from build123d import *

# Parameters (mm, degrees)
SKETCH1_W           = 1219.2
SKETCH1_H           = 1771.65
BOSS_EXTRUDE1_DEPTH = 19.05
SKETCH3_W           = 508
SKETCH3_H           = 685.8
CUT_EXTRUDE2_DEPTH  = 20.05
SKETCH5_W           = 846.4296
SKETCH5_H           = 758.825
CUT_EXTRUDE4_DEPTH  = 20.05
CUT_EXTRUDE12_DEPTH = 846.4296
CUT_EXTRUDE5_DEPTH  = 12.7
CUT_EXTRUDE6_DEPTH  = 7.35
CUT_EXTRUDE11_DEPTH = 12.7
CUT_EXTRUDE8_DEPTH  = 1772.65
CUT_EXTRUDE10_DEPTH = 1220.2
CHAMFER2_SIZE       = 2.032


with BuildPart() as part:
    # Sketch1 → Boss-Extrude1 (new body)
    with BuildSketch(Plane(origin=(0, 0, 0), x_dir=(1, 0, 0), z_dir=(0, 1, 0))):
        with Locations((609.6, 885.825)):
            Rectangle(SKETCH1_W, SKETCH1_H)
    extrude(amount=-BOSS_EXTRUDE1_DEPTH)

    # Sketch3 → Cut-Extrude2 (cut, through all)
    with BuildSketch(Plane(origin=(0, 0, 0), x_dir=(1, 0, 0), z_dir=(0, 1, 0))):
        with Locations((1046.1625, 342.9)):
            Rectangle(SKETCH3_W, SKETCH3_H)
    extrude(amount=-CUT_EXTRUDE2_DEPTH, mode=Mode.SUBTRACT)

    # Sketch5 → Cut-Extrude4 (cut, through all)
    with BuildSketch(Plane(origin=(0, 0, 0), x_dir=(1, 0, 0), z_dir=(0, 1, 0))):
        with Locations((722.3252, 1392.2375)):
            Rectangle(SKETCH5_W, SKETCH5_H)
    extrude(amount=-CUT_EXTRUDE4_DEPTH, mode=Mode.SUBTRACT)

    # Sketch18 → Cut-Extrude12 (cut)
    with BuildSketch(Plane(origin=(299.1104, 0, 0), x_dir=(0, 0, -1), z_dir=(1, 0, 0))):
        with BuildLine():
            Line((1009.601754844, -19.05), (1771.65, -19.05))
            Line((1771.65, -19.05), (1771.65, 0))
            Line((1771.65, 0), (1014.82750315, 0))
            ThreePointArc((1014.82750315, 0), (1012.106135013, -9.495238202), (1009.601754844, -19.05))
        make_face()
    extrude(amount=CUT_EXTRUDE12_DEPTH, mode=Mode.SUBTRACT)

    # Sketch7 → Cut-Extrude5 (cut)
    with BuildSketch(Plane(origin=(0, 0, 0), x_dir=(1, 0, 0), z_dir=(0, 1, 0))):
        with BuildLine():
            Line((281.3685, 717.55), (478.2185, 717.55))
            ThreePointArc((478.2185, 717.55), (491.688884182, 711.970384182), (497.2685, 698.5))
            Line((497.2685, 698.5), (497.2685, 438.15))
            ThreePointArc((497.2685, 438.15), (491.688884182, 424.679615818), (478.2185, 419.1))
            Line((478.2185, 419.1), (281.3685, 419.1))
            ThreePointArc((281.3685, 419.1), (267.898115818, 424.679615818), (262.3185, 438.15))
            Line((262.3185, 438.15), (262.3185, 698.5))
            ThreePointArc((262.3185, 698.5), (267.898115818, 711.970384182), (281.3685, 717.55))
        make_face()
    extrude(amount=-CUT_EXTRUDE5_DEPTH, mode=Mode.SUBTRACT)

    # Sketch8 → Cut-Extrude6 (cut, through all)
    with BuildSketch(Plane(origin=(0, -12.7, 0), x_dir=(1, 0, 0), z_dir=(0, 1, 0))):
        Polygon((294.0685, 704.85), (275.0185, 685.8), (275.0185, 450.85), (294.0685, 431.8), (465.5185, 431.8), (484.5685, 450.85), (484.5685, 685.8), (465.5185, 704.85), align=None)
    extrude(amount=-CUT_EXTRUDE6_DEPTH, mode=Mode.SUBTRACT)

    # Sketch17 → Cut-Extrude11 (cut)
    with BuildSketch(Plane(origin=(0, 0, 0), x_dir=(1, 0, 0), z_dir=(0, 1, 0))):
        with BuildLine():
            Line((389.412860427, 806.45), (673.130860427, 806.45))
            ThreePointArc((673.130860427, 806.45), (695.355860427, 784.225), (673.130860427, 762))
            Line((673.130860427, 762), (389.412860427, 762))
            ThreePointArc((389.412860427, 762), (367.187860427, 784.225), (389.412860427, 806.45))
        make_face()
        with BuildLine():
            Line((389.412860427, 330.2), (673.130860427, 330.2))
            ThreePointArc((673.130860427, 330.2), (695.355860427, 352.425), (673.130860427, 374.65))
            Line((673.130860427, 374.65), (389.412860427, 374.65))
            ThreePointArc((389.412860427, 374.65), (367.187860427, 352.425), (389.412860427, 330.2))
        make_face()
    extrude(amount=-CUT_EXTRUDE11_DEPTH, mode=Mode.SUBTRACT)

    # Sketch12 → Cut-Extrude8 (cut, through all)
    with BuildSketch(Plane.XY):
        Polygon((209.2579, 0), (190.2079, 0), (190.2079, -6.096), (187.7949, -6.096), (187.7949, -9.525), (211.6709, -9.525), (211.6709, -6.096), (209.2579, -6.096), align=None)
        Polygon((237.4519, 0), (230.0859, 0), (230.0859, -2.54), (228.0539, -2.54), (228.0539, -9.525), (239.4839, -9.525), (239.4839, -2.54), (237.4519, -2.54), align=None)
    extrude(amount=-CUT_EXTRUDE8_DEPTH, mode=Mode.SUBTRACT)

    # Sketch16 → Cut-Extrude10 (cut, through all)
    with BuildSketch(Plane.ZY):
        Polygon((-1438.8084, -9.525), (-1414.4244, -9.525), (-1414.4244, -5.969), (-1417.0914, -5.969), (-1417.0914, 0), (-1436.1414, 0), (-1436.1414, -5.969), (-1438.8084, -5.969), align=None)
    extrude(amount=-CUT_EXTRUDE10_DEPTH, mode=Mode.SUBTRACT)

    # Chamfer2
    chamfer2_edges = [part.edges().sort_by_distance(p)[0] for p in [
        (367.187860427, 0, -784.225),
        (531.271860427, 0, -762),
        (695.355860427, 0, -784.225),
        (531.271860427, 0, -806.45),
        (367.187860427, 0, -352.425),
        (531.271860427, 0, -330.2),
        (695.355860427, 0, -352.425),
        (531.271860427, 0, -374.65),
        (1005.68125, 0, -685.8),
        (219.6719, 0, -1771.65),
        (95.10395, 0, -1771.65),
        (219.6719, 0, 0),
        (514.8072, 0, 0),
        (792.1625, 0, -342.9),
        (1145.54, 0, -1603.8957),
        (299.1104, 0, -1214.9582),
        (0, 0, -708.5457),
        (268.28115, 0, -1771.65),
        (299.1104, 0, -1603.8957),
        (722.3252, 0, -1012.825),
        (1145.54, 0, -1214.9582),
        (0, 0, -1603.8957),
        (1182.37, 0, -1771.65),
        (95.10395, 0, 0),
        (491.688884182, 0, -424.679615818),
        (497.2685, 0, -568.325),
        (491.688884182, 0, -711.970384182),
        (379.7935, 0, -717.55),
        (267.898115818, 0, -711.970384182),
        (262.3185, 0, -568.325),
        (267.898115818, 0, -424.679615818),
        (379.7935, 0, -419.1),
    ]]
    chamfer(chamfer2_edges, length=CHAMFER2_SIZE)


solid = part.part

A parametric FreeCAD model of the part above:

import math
import FreeCAD as App
import Part
import Sketcher
from FreeCAD import Vector
Q = App.Units.Quantity


def edges_at(feature, points):
    """Names of the edges that pass closest to the given points."""
    edges = feature.Shape.Edges
    near = lambda p: min(range(len(edges)), key=lambda i: edges[i].distToShape(Part.Vertex(*p))[0])
    return sorted({f"Edge{near(p) + 1}" for p in points})

doc = App.newDocument("Part")
params = doc.addObject("Spreadsheet::Sheet", "Params")
for row, (alias, value) in enumerate([
    ("sketch1_width", "48 in"),
    ("sketch1_height", "69.75 in"),
    ("pad1_length", "0.75 in"),
    ("sketch2_width", "20 in"),
    ("sketch2_height", "27 in"),
    ("sketch3_width", "33.324 in"),
    ("sketch3_height", "29.875 in"),
    ("sketch4_width", "0.75 in"),
    ("pocket3_length", "33.324 in"),
    ("sketch5_radius", "0.75 in"),
    ("sketch5_width", "7.75 in"),
    ("pocket4_length", "0.5 in"),
    ("sketch6_width", "6.75 in"),
    ("sketch6_height", "9.25 in"),
    ("sketch7_radius", "0.875 in"),
    ("sketch7_width", "11.17 in"),
    ("pocket6_length", "0.5 in"),
    ("sketch8_height", "0.1 in"),
    ("sketch8_width", "0.75 in"),
    ("sketch8_width2", "0.94 in"),
    ("sketch8_width3", "0.29 in"),
    ("sketch8_width4", "0.08 in"),
    ("sketch9_width", "0.14 in"),
    ("sketch9_height", "0.96 in"),
    ("sketch9_height2", "0.75 in"),
    ("sketch9_width2", "0.235 in"),
    ("chamfer_size", "0.08 in"),
], start=1):
    params.set(f"A{row}", alias)
    params.set(f"B{row}", "=" + value)
    params.setAlias(f"B{row}", alias)

body = doc.addObject("PartDesign::Body", "Body")

sketch1 = body.newObject("Sketcher::SketchObject", "Sketch")
sketch1.AttachmentSupport = (doc.getObject("XZ_Plane"), [""])
sketch1.MapMode = "FlatFace"
sketch1.addGeometry(Part.LineSegment(Vector(0, -1772, 0), Vector(0, 0, 0)), False)
sketch1.addGeometry(Part.LineSegment(Vector(0, 0, 0), Vector(1219, 0, 0)), False)
sketch1.addGeometry(Part.LineSegment(Vector(1219, 0, 0), Vector(1219, -1772, 0)), False)
sketch1.addGeometry(Part.LineSegment(Vector(1219, -1772, 0), Vector(0, -1772, 0)), False)
sketch1.addConstraint(Sketcher.Constraint("Coincident", 0, 2, 1, 1))
sketch1.addConstraint(Sketcher.Constraint("Coincident", 1, 2, 2, 1))
sketch1.addConstraint(Sketcher.Constraint("Coincident", 2, 2, 3, 1))
sketch1.addConstraint(Sketcher.Constraint("Coincident", 3, 2, 0, 1))
sketch1.addConstraint(Sketcher.Constraint("Vertical", 0))
sketch1.addConstraint(Sketcher.Constraint("Horizontal", 1))
sketch1.addConstraint(Sketcher.Constraint("Vertical", 2))
sketch1.addConstraint(Sketcher.Constraint("Horizontal", 3))
sketch1.addConstraint(Sketcher.Constraint("Coincident", 0, 2, -1, 1))
sketch1.addConstraint(Sketcher.Constraint("DistanceX", 1, 1, 1, 2, Q("48 in")))
sketch1.addConstraint(Sketcher.Constraint("DistanceY", 0, 1, 0, 2, Q("69.75 in")))
sketch1.setExpression("Constraints[9]", "Params.sketch1_width")
sketch1.setExpression("Constraints[10]", "Params.sketch1_height")
pad1 = body.newObject("PartDesign::Pad", "Pad")
pad1.Profile = sketch1
pad1.setExpression("Length", "Params.pad1_length")

sketch2 = body.newObject("Sketcher::SketchObject", "Sketch001")
sketch2.AttachmentSupport = (doc.getObject("XZ_Plane"), [""])
sketch2.MapMode = "FlatFace"
sketch2.addGeometry(Part.LineSegment(Vector(792, -686, 0), Vector(792, 0, 0)), False)
sketch2.addGeometry(Part.LineSegment(Vector(792, 0, 0), Vector(1300, 0, 0)), False)
sketch2.addGeometry(Part.LineSegment(Vector(1300, 0, 0), Vector(1300, -686, 0)), False)
sketch2.addGeometry(Part.LineSegment(Vector(1300, -686, 0), Vector(792, -686, 0)), False)
sketch2.addConstraint(Sketcher.Constraint("Coincident", 0, 2, 1, 1))
sketch2.addConstraint(Sketcher.Constraint("Coincident", 1, 2, 2, 1))
sketch2.addConstraint(Sketcher.Constraint("Coincident", 2, 2, 3, 1))
sketch2.addConstraint(Sketcher.Constraint("Coincident", 3, 2, 0, 1))
sketch2.addConstraint(Sketcher.Constraint("Vertical", 0))
sketch2.addConstraint(Sketcher.Constraint("Horizontal", 1))
sketch2.addConstraint(Sketcher.Constraint("Vertical", 2))
sketch2.addConstraint(Sketcher.Constraint("Horizontal", 3))
sketch2.addConstraint(Sketcher.Constraint("PointOnObject", 0, 2, -1))
sketch2.addConstraint(Sketcher.Constraint("DistanceX", 1, 1, 1, 2, Q("20 in")))
sketch2.addConstraint(Sketcher.Constraint("DistanceY", 0, 1, 0, 2, Q("27 in")))
sketch2.addConstraint(Sketcher.Constraint("DistanceX", -1, 1, 0, 2, Q("31.1875 in")))
sketch2.setExpression("Constraints[9]", "Params.sketch2_width")
sketch2.setExpression("Constraints[10]", "Params.sketch2_height")
pocket1 = body.newObject("PartDesign::Pocket", "Pocket")
pocket1.Profile = sketch2
pocket1.Type = "ThroughAll"
pocket1.Reversed = True

sketch3 = body.newObject("Sketcher::SketchObject", "Sketch002")
sketch3.AttachmentSupport = (doc.getObject("XZ_Plane"), [""])
sketch3.MapMode = "FlatFace"
sketch3.addGeometry(Part.LineSegment(Vector(299, -1772, 0), Vector(299, -1013, 0)), False)
sketch3.addGeometry(Part.LineSegment(Vector(299, -1013, 0), Vector(1146, -1013, 0)), False)
sketch3.addGeometry(Part.LineSegment(Vector(1146, -1013, 0), Vector(1146, -1772, 0)), False)
sketch3.addGeometry(Part.LineSegment(Vector(1146, -1772, 0), Vector(299, -1772, 0)), False)
sketch3.addConstraint(Sketcher.Constraint("Coincident", 0, 2, 1, 1))
sketch3.addConstraint(Sketcher.Constraint("Coincident", 1, 2, 2, 1))
sketch3.addConstraint(Sketcher.Constraint("Coincident", 2, 2, 3, 1))
sketch3.addConstraint(Sketcher.Constraint("Coincident", 3, 2, 0, 1))
sketch3.addConstraint(Sketcher.Constraint("Vertical", 0))
sketch3.addConstraint(Sketcher.Constraint("Horizontal", 1))
sketch3.addConstraint(Sketcher.Constraint("Vertical", 2))
sketch3.addConstraint(Sketcher.Constraint("Horizontal", 3))
sketch3.addConstraint(Sketcher.Constraint("DistanceX", -1, 1, 1, 2, Q("45.1 in")))
sketch3.addConstraint(Sketcher.Constraint("DistanceX", 1, 1, 1, 2, Q("33.324 in")))
sketch3.addConstraint(Sketcher.Constraint("DistanceY", 0, 1, 0, 2, Q("29.875 in")))
sketch3.addConstraint(Sketcher.Constraint("DistanceY", 2, 2, -1, 1, Q("69.75 in")))
sketch3.setExpression("Constraints[9]", "Params.sketch3_width")
sketch3.setExpression("Constraints[10]", "Params.sketch3_height")
pocket2 = body.newObject("PartDesign::Pocket", "Pocket001")
pocket2.Profile = sketch3
pocket2.Type = "ThroughAll"
pocket2.Reversed = True

sketch4 = body.newObject("Sketcher::SketchObject", "Sketch003")
sketch4.AttachmentSupport = (doc.getObject("YZ_Plane"), [""])
sketch4.MapMode = "FlatFace"
sketch4.AttachmentOffset = App.Placement(Vector(0, 0, 11.776 * 25.4), App.Rotation())
sketch4.addGeometry(Part.LineSegment(Vector(-19, -1010, 0), Vector(-19, -1772, 0)), False)
sketch4.addGeometry(Part.LineSegment(Vector(-19, -1772, 0), Vector(0, -1772, 0)), False)
sketch4.addGeometry(Part.LineSegment(Vector(0, -1772, 0), Vector(0, -1015, 0)), False)
sketch4.addGeometry(Part.ArcOfCircle(Part.Circle(Vector(-124, -1430, 0), Vector(0, 0, 1), 434), math.radians(73.35), math.radians(75.97)), False)
sketch4.addConstraint(Sketcher.Constraint("Coincident", 0, 2, 1, 1))
sketch4.addConstraint(Sketcher.Constraint("Coincident", 1, 2, 2, 1))
sketch4.addConstraint(Sketcher.Constraint("Coincident", 2, 2, 3, 1))
sketch4.addConstraint(Sketcher.Constraint("Coincident", 3, 2, 0, 1))
sketch4.addConstraint(Sketcher.Constraint("Vertical", 0))
sketch4.addConstraint(Sketcher.Constraint("Horizontal", 1))
sketch4.addConstraint(Sketcher.Constraint("Vertical", 2))
sketch4.addConstraint(Sketcher.Constraint("PointOnObject", 1, 2, -2))
sketch4.addConstraint(Sketcher.Constraint("DistanceX", 1, 1, 1, 2, Q("0.75 in")))
sketch4.addConstraint(Sketcher.Constraint("Radius", 3, Q("17.0715001 in")))
sketch4.addConstraint(Sketcher.Constraint("DistanceX", 3, 3, -1, 1, Q("4.89 in")))
sketch4.addConstraint(Sketcher.Constraint("DistanceY", 3, 3, -1, 1, Q("56.3100001 in")))
sketch4.addConstraint(Sketcher.Constraint("DistanceY", 0, 2, -1, 1, Q("69.75 in")))
sketch4.setExpression("Constraints[8]", "Params.sketch4_width")
pocket3 = body.newObject("PartDesign::Pocket", "Pocket002")
pocket3.Profile = sketch4
pocket3.setExpression("Length", "Params.pocket3_length")
pocket3.Reversed = True

sketch5 = body.newObject("Sketcher::SketchObject", "Sketch004")
sketch5.AttachmentSupport = (doc.getObject("XZ_Plane"), [""])
sketch5.MapMode = "FlatFace"
sketch5.addGeometry(Part.LineSegment(Vector(478, -718, 0), Vector(281, -718, 0)), False)
sketch5.addGeometry(Part.ArcOfCircle(Part.Circle(Vector(281, -699, 0), Vector(0, 0, 1), 19), math.radians(180), math.radians(270)), False)
sketch5.addGeometry(Part.LineSegment(Vector(262, -698, 0), Vector(262, -438, 0)), False)
sketch5.addGeometry(Part.ArcOfCircle(Part.Circle(Vector(281, -438, 0), Vector(0, 0, 1), 19), math.radians(90), math.radians(180)), False)
sketch5.addGeometry(Part.LineSegment(Vector(281, -419, 0), Vector(478, -419, 0)), False)
sketch5.addGeometry(Part.ArcOfCircle(Part.Circle(Vector(478, -438, 0), Vector(0, 0, 1), 19), math.radians(0), math.radians(90)), False)
sketch5.addGeometry(Part.LineSegment(Vector(497, -438, 0), Vector(497, -698, 0)), False)
sketch5.addGeometry(Part.ArcOfCircle(Part.Circle(Vector(478, -699, 0), Vector(0, 0, 1), 19), math.radians(-90), math.radians(0)), False)
sketch5.addConstraint(Sketcher.Constraint("Tangent", 0, 2, 1, 2))
sketch5.addConstraint(Sketcher.Constraint("Tangent", 1, 1, 2, 1))
sketch5.addConstraint(Sketcher.Constraint("Tangent", 2, 2, 3, 2))
sketch5.addConstraint(Sketcher.Constraint("Tangent", 3, 1, 4, 1))
sketch5.addConstraint(Sketcher.Constraint("Tangent", 4, 2, 5, 2))
sketch5.addConstraint(Sketcher.Constraint("Tangent", 5, 1, 6, 1))
sketch5.addConstraint(Sketcher.Constraint("Tangent", 6, 2, 7, 2))
sketch5.addConstraint(Sketcher.Constraint("Tangent", 7, 1, 0, 1))
sketch5.addConstraint(Sketcher.Constraint("Horizontal", 0))
sketch5.addConstraint(Sketcher.Constraint("Vertical", 2))
sketch5.addConstraint(Sketcher.Constraint("Horizontal", 4))
sketch5.addConstraint(Sketcher.Constraint("Vertical", 6))
sketch5.addConstraint(Sketcher.Constraint("Equal", 1, 3))
sketch5.addConstraint(Sketcher.Constraint("Equal", 3, 5))
sketch5.addConstraint(Sketcher.Constraint("Equal", 5, 7))
sketch5.addConstraint(Sketcher.Constraint("Radius", 1, Q("0.75 in")))
sketch5.addConstraint(Sketcher.Constraint("DistanceY", 0, 2, 3, 3, Q("11 in")))
sketch5.addConstraint(Sketcher.Constraint("DistanceX", 0, 2, 0, 1, Q("7.75 in")))
sketch5.addConstraint(Sketcher.Constraint("DistanceY", 1, 3, -1, 1, Q("27.5 in")))
sketch5.addConstraint(Sketcher.Constraint("DistanceX", -1, 1, 1, 3, Q("11.0775 in")))
sketch5.setExpression("Constraints[15]", "Params.sketch5_radius")
sketch5.setExpression("Constraints[17]", "Params.sketch5_width")
pocket4 = body.newObject("PartDesign::Pocket", "Pocket003")
pocket4.Profile = sketch5
pocket4.setExpression("Length", "Params.pocket4_length")
pocket4.Reversed = True

sketch6 = body.newObject("Sketcher::SketchObject", "Sketch005")
sketch6.AttachmentSupport = (doc.getObject("XZ_Plane"), [""])
sketch6.MapMode = "FlatFace"
sketch6.AttachmentOffset = App.Placement(Vector(0, 0, 0.5 * 25.4), App.Rotation())
sketch6.addGeometry(Part.LineSegment(Vector(294, -705, 0), Vector(275, -686, 0)), False)
sketch6.addGeometry(Part.LineSegment(Vector(275, -686, 0), Vector(275, -451, 0)), False)
sketch6.addGeometry(Part.LineSegment(Vector(275, -451, 0), Vector(294, -432, 0)), False)
sketch6.addGeometry(Part.LineSegment(Vector(294, -432, 0), Vector(466, -432, 0)), False)
sketch6.addGeometry(Part.LineSegment(Vector(466, -432, 0), Vector(485, -451, 0)), False)
sketch6.addGeometry(Part.LineSegment(Vector(485, -451, 0), Vector(485, -686, 0)), False)
sketch6.addGeometry(Part.LineSegment(Vector(485, -686, 0), Vector(466, -705, 0)), False)
sketch6.addGeometry(Part.LineSegment(Vector(466, -705, 0), Vector(294, -705, 0)), False)
sketch6.addConstraint(Sketcher.Constraint("Coincident", 0, 2, 1, 1))
sketch6.addConstraint(Sketcher.Constraint("Coincident", 1, 2, 2, 1))
sketch6.addConstraint(Sketcher.Constraint("Coincident", 2, 2, 3, 1))
sketch6.addConstraint(Sketcher.Constraint("Coincident", 3, 2, 4, 1))
sketch6.addConstraint(Sketcher.Constraint("Coincident", 4, 2, 5, 1))
sketch6.addConstraint(Sketcher.Constraint("Coincident", 5, 2, 6, 1))
sketch6.addConstraint(Sketcher.Constraint("Coincident", 6, 2, 7, 1))
sketch6.addConstraint(Sketcher.Constraint("Coincident", 7, 2, 0, 1))
sketch6.addConstraint(Sketcher.Constraint("Vertical", 1))
sketch6.addConstraint(Sketcher.Constraint("Horizontal", 3))
sketch6.addConstraint(Sketcher.Constraint("Vertical", 5))
sketch6.addConstraint(Sketcher.Constraint("Horizontal", 7))
sketch6.addConstraint(Sketcher.Constraint("Perpendicular", 0, 2))
sketch6.addConstraint(Sketcher.Constraint("Perpendicular", 2, 4))
sketch6.addConstraint(Sketcher.Constraint("Perpendicular", 4, 6))
sketch6.addConstraint(Sketcher.Constraint("Horizontal", 1, 2, 4, 2))
sketch6.addConstraint(Sketcher.Constraint("Horizontal", 0, 2, 5, 2))
sketch6.addConstraint(Sketcher.Constraint("Vertical", 3, 2, 6, 2))
sketch6.addConstraint(Sketcher.Constraint("Vertical", 2, 2, 7, 2))
sketch6.addConstraint(Sketcher.Constraint("DistanceY", 0, 2, -1, 1, Q("27 in")))
sketch6.addConstraint(Sketcher.Constraint("DistanceY", 2, 2, -1, 1, Q("17 in")))
sketch6.addConstraint(Sketcher.Constraint("DistanceX", 3, 1, 3, 2, Q("6.75 in")))
sketch6.addConstraint(Sketcher.Constraint("DistanceY", 1, 1, 1, 2, Q("9.25 in")))
sketch6.addConstraint(Sketcher.Constraint("DistanceX", -1, 1, 0, 2, Q("10.8275 in")))
sketch6.setExpression("Constraints[21]", "Params.sketch6_width")
sketch6.setExpression("Constraints[22]", "Params.sketch6_height")
pocket5 = body.newObject("PartDesign::Pocket", "Pocket004")
pocket5.Profile = sketch6
pocket5.Type = "ThroughAll"
pocket5.Reversed = True

sketch7 = body.newObject("Sketcher::SketchObject", "Sketch006")
sketch7.AttachmentSupport = (doc.getObject("XZ_Plane"), [""])
sketch7.MapMode = "FlatFace"
sketch7.addGeometry(Part.LineSegment(Vector(673, -806, 0), Vector(389, -806, 0)), False)
sketch7.addGeometry(Part.ArcOfCircle(Part.Circle(Vector(389, -784, 0), Vector(0, 0, 1), 22), math.radians(90), math.radians(270)), False)
sketch7.addGeometry(Part.LineSegment(Vector(389, -762, 0), Vector(673, -762, 0)), False)
sketch7.addGeometry(Part.ArcOfCircle(Part.Circle(Vector(673, -784, 0), Vector(0, 0, 1), 22), math.radians(-90), math.radians(90)), False)
sketch7.addGeometry(Part.LineSegment(Vector(389, -330, 0), Vector(673, -330, 0)), False)
sketch7.addGeometry(Part.ArcOfCircle(Part.Circle(Vector(673, -352, 0), Vector(0, 0, 1), 22), math.radians(-90), math.radians(90)), False)
sketch7.addGeometry(Part.LineSegment(Vector(673, -375, 0), Vector(389, -375, 0)), False)
sketch7.addGeometry(Part.ArcOfCircle(Part.Circle(Vector(389, -352, 0), Vector(0, 0, 1), 22), math.radians(90), math.radians(270)), False)
sketch7.addConstraint(Sketcher.Constraint("Tangent", 0, 2, 1, 2))
sketch7.addConstraint(Sketcher.Constraint("Tangent", 1, 1, 2, 1))
sketch7.addConstraint(Sketcher.Constraint("Tangent", 2, 2, 3, 2))
sketch7.addConstraint(Sketcher.Constraint("Tangent", 3, 1, 0, 1))
sketch7.addConstraint(Sketcher.Constraint("Tangent", 4, 2, 5, 2))
sketch7.addConstraint(Sketcher.Constraint("Tangent", 5, 1, 6, 1))
sketch7.addConstraint(Sketcher.Constraint("Tangent", 6, 2, 7, 2))
sketch7.addConstraint(Sketcher.Constraint("Tangent", 7, 1, 4, 1))
sketch7.addConstraint(Sketcher.Constraint("Horizontal", 0))
sketch7.addConstraint(Sketcher.Constraint("Horizontal", 2))
sketch7.addConstraint(Sketcher.Constraint("Horizontal", 4))
sketch7.addConstraint(Sketcher.Constraint("Horizontal", 6))
sketch7.addConstraint(Sketcher.Constraint("Equal", 3, 5))
sketch7.addConstraint(Sketcher.Constraint("Vertical", 3, 3, 5, 3))
sketch7.addConstraint(Sketcher.Constraint("Vertical", 1, 3, 7, 3))
sketch7.addConstraint(Sketcher.Constraint("DistanceY", 1, 1, -1, 1, Q("30 in")))
sketch7.addConstraint(Sketcher.Constraint("DistanceY", 4, 2, -1, 1, Q("13 in")))
sketch7.addConstraint(Sketcher.Constraint("Radius", 1, Q("0.875 in")))
sketch7.addConstraint(Sketcher.Constraint("DistanceX", 0, 2, 0, 1, Q("11.17 in")))
sketch7.addConstraint(Sketcher.Constraint("DistanceX", -1, 1, 1, 3, 389.41286))
sketch7.setExpression("Constraints[17]", "Params.sketch7_radius")
sketch7.setExpression("Constraints[18]", "Params.sketch7_width")
pocket6 = body.newObject("PartDesign::Pocket", "Pocket005")
pocket6.Profile = sketch7
pocket6.setExpression("Length", "Params.pocket6_length")
pocket6.Reversed = True

sketch8 = body.newObject("Sketcher::SketchObject", "Sketch007")
sketch8.AttachmentSupport = (doc.getObject("XY_Plane"), [""])
sketch8.MapMode = "FlatFace"
sketch8.addGeometry(Part.LineSegment(Vector(209.3, 0, 0), Vector(190.2, 0, 0)), False)
sketch8.addGeometry(Part.LineSegment(Vector(190.2, 0, 0), Vector(190.2, -6.1, 0)), False)
sketch8.addGeometry(Part.LineSegment(Vector(190.2, -6.1, 0), Vector(187.8, -6.1, 0)), False)
sketch8.addGeometry(Part.LineSegment(Vector(187.8, -6.1, 0), Vector(187.8, -9.5, 0)), False)
sketch8.addGeometry(Part.LineSegment(Vector(187.8, -9.5, 0), Vector(211.7, -9.5, 0)), False)
sketch8.addGeometry(Part.LineSegment(Vector(211.7, -9.5, 0), Vector(211.7, -6.1, 0)), False)
sketch8.addGeometry(Part.LineSegment(Vector(211.7, -6.1, 0), Vector(209.3, -6.1, 0)), False)
sketch8.addGeometry(Part.LineSegment(Vector(209.3, -6.1, 0), Vector(209.3, 0, 0)), False)
sketch8.addGeometry(Part.LineSegment(Vector(237.5, 0, 0), Vector(230.1, 0, 0)), False)
sketch8.addGeometry(Part.LineSegment(Vector(230.1, 0, 0), Vector(230.1, -2.5, 0)), False)
sketch8.addGeometry(Part.LineSegment(Vector(230.1, -2.5, 0), Vector(228.1, -2.5, 0)), False)
sketch8.addGeometry(Part.LineSegment(Vector(228.1, -2.5, 0), Vector(228.1, -9.5, 0)), False)
sketch8.addGeometry(Part.LineSegment(Vector(228.1, -9.5, 0), Vector(239.5, -9.5, 0)), False)
sketch8.addGeometry(Part.LineSegment(Vector(239.5, -9.5, 0), Vector(239.5, -2.5, 0)), False)
sketch8.addGeometry(Part.LineSegment(Vector(239.5, -2.5, 0), Vector(237.5, -2.5, 0)), False)
sketch8.addGeometry(Part.LineSegment(Vector(237.5, -2.5, 0), Vector(237.5, 0, 0)), False)
sketch8.addConstraint(Sketcher.Constraint("Coincident", 0, 2, 1, 1))
sketch8.addConstraint(Sketcher.Constraint("Coincident", 1, 2, 2, 1))
sketch8.addConstraint(Sketcher.Constraint("Coincident", 2, 2, 3, 1))
sketch8.addConstraint(Sketcher.Constraint("Coincident", 3, 2, 4, 1))
sketch8.addConstraint(Sketcher.Constraint("Coincident", 4, 2, 5, 1))
sketch8.addConstraint(Sketcher.Constraint("Coincident", 5, 2, 6, 1))
sketch8.addConstraint(Sketcher.Constraint("Coincident", 6, 2, 7, 1))
sketch8.addConstraint(Sketcher.Constraint("Coincident", 7, 2, 0, 1))
sketch8.addConstraint(Sketcher.Constraint("Coincident", 8, 2, 9, 1))
sketch8.addConstraint(Sketcher.Constraint("Coincident", 9, 2, 10, 1))
sketch8.addConstraint(Sketcher.Constraint("Coincident", 10, 2, 11, 1))
sketch8.addConstraint(Sketcher.Constraint("Coincident", 11, 2, 12, 1))
sketch8.addConstraint(Sketcher.Constraint("Coincident", 12, 2, 13, 1))
sketch8.addConstraint(Sketcher.Constraint("Coincident", 13, 2, 14, 1))
sketch8.addConstraint(Sketcher.Constraint("Coincident", 14, 2, 15, 1))
sketch8.addConstraint(Sketcher.Constraint("Coincident", 15, 2, 8, 1))
sketch8.addConstraint(Sketcher.Constraint("Horizontal", 0))
sketch8.addConstraint(Sketcher.Constraint("Vertical", 1))
sketch8.addConstraint(Sketcher.Constraint("Horizontal", 2))
sketch8.addConstraint(Sketcher.Constraint("Vertical", 3))
sketch8.addConstraint(Sketcher.Constraint("Horizontal", 4))
sketch8.addConstraint(Sketcher.Constraint("Vertical", 5))
sketch8.addConstraint(Sketcher.Constraint("Horizontal", 6))
sketch8.addConstraint(Sketcher.Constraint("Vertical", 7))
sketch8.addConstraint(Sketcher.Constraint("Horizontal", 8))
sketch8.addConstraint(Sketcher.Constraint("Vertical", 9))
sketch8.addConstraint(Sketcher.Constraint("Horizontal", 10))
sketch8.addConstraint(Sketcher.Constraint("Vertical", 11))
sketch8.addConstraint(Sketcher.Constraint("Horizontal", 12))
sketch8.addConstraint(Sketcher.Constraint("Vertical", 13))
sketch8.addConstraint(Sketcher.Constraint("Horizontal", 14))
sketch8.addConstraint(Sketcher.Constraint("Vertical", 15))
sketch8.addConstraint(Sketcher.Constraint("PointOnObject", 0, 2, -1))
sketch8.addConstraint(Sketcher.Constraint("PointOnObject", 8, 2, -1))
sketch8.addConstraint(Sketcher.Constraint("Horizontal", 2, 2, 5, 2))
sketch8.addConstraint(Sketcher.Constraint("Horizontal", 4, 2, 11, 2))
sketch8.addConstraint(Sketcher.Constraint("Horizontal", 10, 2, 13, 2))
sketch8.addConstraint(Sketcher.Constraint("Equal", 2, 6))
sketch8.addConstraint(Sketcher.Constraint("Equal", 10, 14))
sketch8.addConstraint(Sketcher.Constraint("DistanceY", 9, 2, 9, 1, Q("0.1 in")))
sketch8.addConstraint(Sketcher.Constraint("DistanceX", 0, 2, 0, 1, Q("0.75 in")))
sketch8.addConstraint(Sketcher.Constraint("DistanceX", 4, 1, 4, 2, Q("0.94 in")))
sketch8.addConstraint(Sketcher.Constraint("DistanceX", 8, 2, 8, 1, Q("0.29 in")))
sketch8.addConstraint(Sketcher.Constraint("DistanceX", 10, 2, 10, 1, Q("0.08 in")))
sketch8.addConstraint(Sketcher.Constraint("DistanceY", 1, 2, 1, 1, Q("0.24 in")))
sketch8.addConstraint(Sketcher.Constraint("DistanceY", 3, 2, 3, 1, Q("0.135 in")))
sketch8.addConstraint(Sketcher.Constraint("DistanceX", 7, 2, 8, 2, Q("0.82 in")))
sketch8.addConstraint(Sketcher.Constraint("DistanceX", -1, 1, 0, 2, Q("7.4885 in")))
sketch8.setExpression("Constraints[39]", "Params.sketch8_height")
sketch8.setExpression("Constraints[40]", "Params.sketch8_width")
sketch8.setExpression("Constraints[41]", "Params.sketch8_width2")
sketch8.setExpression("Constraints[42]", "Params.sketch8_width3")
sketch8.setExpression("Constraints[43]", "Params.sketch8_width4")
pocket7 = body.newObject("PartDesign::Pocket", "Pocket006")
pocket7.Profile = sketch8
pocket7.Type = "ThroughAll"

sketch9 = body.newObject("Sketcher::SketchObject", "Sketch008")
sketch9.AttachmentSupport = (doc.getObject("YZ_Plane"), [""])
sketch9.MapMode = "FlatFace"
sketch9.addGeometry(Part.LineSegment(Vector(-9.5, -1438.8, 0), Vector(-9.5, -1414.4, 0)), False)
sketch9.addGeometry(Part.LineSegment(Vector(-9.5, -1414.4, 0), Vector(-6, -1414.4, 0)), False)
sketch9.addGeometry(Part.LineSegment(Vector(-6, -1414.4, 0), Vector(-6, -1417.1, 0)), False)
sketch9.addGeometry(Part.LineSegment(Vector(-6, -1417.1, 0), Vector(0, -1417.1, 0)), False)
sketch9.addGeometry(Part.LineSegment(Vector(0, -1417.1, 0), Vector(0, -1436.1, 0)), False)
sketch9.addGeometry(Part.LineSegment(Vector(0, -1436.1, 0), Vector(-6, -1436.1, 0)), False)
sketch9.addGeometry(Part.LineSegment(Vector(-6, -1436.1, 0), Vector(-6, -1438.8, 0)), False)
sketch9.addGeometry(Part.LineSegment(Vector(-6, -1438.8, 0), Vector(-9.5, -1438.8, 0)), False)
sketch9.addConstraint(Sketcher.Constraint("Coincident", 0, 2, 1, 1))
sketch9.addConstraint(Sketcher.Constraint("Coincident", 1, 2, 2, 1))
sketch9.addConstraint(Sketcher.Constraint("Coincident", 2, 2, 3, 1))
sketch9.addConstraint(Sketcher.Constraint("Coincident", 3, 2, 4, 1))
sketch9.addConstraint(Sketcher.Constraint("Coincident", 4, 2, 5, 1))
sketch9.addConstraint(Sketcher.Constraint("Coincident", 5, 2, 6, 1))
sketch9.addConstraint(Sketcher.Constraint("Coincident", 6, 2, 7, 1))
sketch9.addConstraint(Sketcher.Constraint("Coincident", 7, 2, 0, 1))
sketch9.addConstraint(Sketcher.Constraint("Vertical", 0))
sketch9.addConstraint(Sketcher.Constraint("Horizontal", 1))
sketch9.addConstraint(Sketcher.Constraint("Vertical", 2))
sketch9.addConstraint(Sketcher.Constraint("Horizontal", 3))
sketch9.addConstraint(Sketcher.Constraint("Vertical", 4))
sketch9.addConstraint(Sketcher.Constraint("Horizontal", 5))
sketch9.addConstraint(Sketcher.Constraint("Vertical", 6))
sketch9.addConstraint(Sketcher.Constraint("Horizontal", 7))
sketch9.addConstraint(Sketcher.Constraint("PointOnObject", 3, 2, -2))
sketch9.addConstraint(Sketcher.Constraint("Vertical", 2, 2, 5, 2))
sketch9.addConstraint(Sketcher.Constraint("Equal", 2, 6))
sketch9.addConstraint(Sketcher.Constraint("DistanceX", 1, 1, 1, 2, Q("0.14 in")))
sketch9.addConstraint(Sketcher.Constraint("DistanceY", 0, 1, 0, 2, Q("0.96 in")))
sketch9.addConstraint(Sketcher.Constraint("DistanceY", 4, 2, 4, 1, Q("0.75 in")))
sketch9.addConstraint(Sketcher.Constraint("DistanceX", 3, 1, 3, 2, Q("0.235 in")))
sketch9.addConstraint(Sketcher.Constraint("DistanceY", 0, 2, -1, 1, Q("55.686 in")))
sketch9.setExpression("Constraints[19]", "Params.sketch9_width")
sketch9.setExpression("Constraints[20]", "Params.sketch9_height")
sketch9.setExpression("Constraints[21]", "Params.sketch9_height2")
sketch9.setExpression("Constraints[22]", "Params.sketch9_width2")
pocket8 = body.newObject("PartDesign::Pocket", "Pocket007")
pocket8.Profile = sketch9
pocket8.Type = "ThroughAll"
pocket8.Reversed = True
doc.recompute()

chamfer = body.newObject("PartDesign::Chamfer", "Chamfer")
chamfer.Base = (pocket8, edges_at(pocket8, [
    (367.188, 0, -784.225),
    (531.272, 0, -762),
    (695.356, 0, -784.225),
    (531.272, 0, -806.45),
    (367.188, 0, -352.425),
    (531.272, 0, -330.2),
    (695.356, 0, -352.425),
    (531.272, 0, -374.65),
    (1005.681, 0, -685.8),
    (219.672, 0, -1771.65),
    (95.104, 0, -1771.65),
    (219.672, 0, 0),
    (514.807, 0, 0),
    (792.163, 0, -342.9),
    (1145.54, 0, -1603.896),
    (299.11, 0, -1214.958),
    (0, 0, -708.546),
    (268.281, 0, -1771.65),
    (299.11, 0, -1603.896),
    (722.325, 0, -1012.825),
    (1145.54, 0, -1214.958),
    (0, 0, -1603.896),
    (1182.37, 0, -1771.65),
    (95.104, 0, 0),
    (491.689, 0, -424.68),
    (497.269, 0, -568.325),
    (491.689, 0, -711.97),
    (379.793, 0, -717.55),
    (267.898, 0, -711.97),
    (262.318, 0, -568.325),
    (267.898, 0, -424.68),
    (379.793, 0, -419.1),
]))
chamfer.setExpression("Size", "Params.chamfer_size")

doc.recompute()
